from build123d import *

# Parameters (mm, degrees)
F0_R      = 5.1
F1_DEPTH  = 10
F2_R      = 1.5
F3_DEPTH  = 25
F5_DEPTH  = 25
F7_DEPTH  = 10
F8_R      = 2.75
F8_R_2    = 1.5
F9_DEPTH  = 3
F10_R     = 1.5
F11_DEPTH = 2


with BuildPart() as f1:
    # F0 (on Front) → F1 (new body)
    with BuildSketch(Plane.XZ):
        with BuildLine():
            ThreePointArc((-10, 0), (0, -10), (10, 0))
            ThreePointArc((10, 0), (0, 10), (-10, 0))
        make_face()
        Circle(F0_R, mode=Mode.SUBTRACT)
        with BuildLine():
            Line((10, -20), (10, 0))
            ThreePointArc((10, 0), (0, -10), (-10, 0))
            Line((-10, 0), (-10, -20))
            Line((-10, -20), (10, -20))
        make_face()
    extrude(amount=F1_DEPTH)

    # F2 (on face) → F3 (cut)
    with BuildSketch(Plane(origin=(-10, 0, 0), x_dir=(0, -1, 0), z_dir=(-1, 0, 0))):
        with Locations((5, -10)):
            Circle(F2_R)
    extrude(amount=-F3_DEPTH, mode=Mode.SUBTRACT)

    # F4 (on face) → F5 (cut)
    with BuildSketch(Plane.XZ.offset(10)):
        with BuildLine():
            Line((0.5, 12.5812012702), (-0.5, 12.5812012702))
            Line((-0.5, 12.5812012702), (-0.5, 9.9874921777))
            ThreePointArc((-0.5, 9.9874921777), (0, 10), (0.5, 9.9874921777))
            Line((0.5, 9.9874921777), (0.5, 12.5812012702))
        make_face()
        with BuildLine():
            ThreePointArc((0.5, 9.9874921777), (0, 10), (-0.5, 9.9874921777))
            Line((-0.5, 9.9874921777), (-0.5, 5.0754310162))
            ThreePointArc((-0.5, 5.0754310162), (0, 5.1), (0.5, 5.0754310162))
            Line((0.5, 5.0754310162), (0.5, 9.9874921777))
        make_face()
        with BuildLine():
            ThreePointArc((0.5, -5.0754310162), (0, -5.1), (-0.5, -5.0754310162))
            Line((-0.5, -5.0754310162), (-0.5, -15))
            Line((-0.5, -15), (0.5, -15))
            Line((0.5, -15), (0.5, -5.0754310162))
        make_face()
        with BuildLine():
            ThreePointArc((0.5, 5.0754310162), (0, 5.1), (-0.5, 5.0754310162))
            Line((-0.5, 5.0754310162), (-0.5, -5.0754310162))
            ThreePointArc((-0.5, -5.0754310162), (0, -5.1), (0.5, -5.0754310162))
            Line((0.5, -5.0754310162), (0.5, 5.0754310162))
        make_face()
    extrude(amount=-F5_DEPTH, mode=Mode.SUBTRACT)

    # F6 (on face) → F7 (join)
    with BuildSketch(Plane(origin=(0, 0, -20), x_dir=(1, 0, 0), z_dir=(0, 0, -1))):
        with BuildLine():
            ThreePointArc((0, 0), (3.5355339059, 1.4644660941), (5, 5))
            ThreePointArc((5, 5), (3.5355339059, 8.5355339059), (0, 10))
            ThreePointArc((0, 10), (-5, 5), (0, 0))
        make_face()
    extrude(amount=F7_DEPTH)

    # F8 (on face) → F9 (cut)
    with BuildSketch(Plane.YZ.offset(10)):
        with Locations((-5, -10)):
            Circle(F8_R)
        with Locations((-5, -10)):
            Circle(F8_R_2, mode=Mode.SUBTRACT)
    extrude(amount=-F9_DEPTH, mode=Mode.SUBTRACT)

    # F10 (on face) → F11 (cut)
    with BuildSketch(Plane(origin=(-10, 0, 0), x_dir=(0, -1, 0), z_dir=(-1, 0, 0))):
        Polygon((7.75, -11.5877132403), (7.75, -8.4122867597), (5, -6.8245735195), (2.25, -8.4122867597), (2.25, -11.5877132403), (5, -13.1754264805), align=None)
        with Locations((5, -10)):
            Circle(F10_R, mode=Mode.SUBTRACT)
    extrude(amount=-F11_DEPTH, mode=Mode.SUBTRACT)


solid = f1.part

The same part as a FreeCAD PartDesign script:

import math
import FreeCAD as App
import Part
import Sketcher
Q = App.Units.Quantity

doc = App.newDocument("Part")
body = doc.addObject("PartDesign::Body", "Body")

# Sketch on XZ plane
sketch1 = body.newObject("Sketcher::SketchObject", "Sketch")
sketch1.AttachmentSupport = (doc.getObject("XZ_Plane"), [""])
sketch1.MapMode = "FlatFace"
sketch1.addGeometry(Part.ArcOfCircle(Part.Circle(App.Vector(0, 0, 0), App.Vector(0, 0, 1), 10), math.radians(0), math.radians(180)), False)
sketch1.addGeometry(Part.LineSegment(App.Vector(-10, 0, 0), App.Vector(-10, -20, 0)), False)
sketch1.addGeometry(Part.LineSegment(App.Vector(-10, -20, 0), App.Vector(10, -20, 0)), False)
sketch1.addGeometry(Part.LineSegment(App.Vector(10, -20, 0), App.Vector(10, 0, 0)), False)
sketch1.addGeometry(Part.Circle(App.Vector(0, 0, 0), App.Vector(0, 0, 1), 5), False)
sketch1.addConstraint(Sketcher.Constraint("Tangent", 0, 2, 1, 1))
sketch1.addConstraint(Sketcher.Constraint("Coincident", 1, 2, 2, 1))
sketch1.addConstraint(Sketcher.Constraint("Coincident", 2, 2, 3, 1))
sketch1.addConstraint(Sketcher.Constraint("Tangent", 3, 2, 0, 1))
sketch1.addConstraint(Sketcher.Constraint("Vertical", 1))
sketch1.addConstraint(Sketcher.Constraint("Horizontal", 2))
sketch1.addConstraint(Sketcher.Constraint("Vertical", 3))
sketch1.addConstraint(Sketcher.Constraint("Coincident", 0, 3, -1, 1))
sketch1.addConstraint(Sketcher.Constraint("Coincident", 4, 3, -1, 1))
sketch1.addConstraint(Sketcher.Constraint("Equal", 2, 1))
sketch1.addConstraint(Sketcher.Constraint("Radius", 0, 10.0))
sketch1.addConstraint(Sketcher.Constraint("Diameter", 4, 10.2))
pad1 = body.newObject("PartDesign::Pad", "Pad")
pad1.Profile = sketch1
pad1.Length = 10

# Sketch on YZ plane
sketch2 = body.newObject("Sketcher::SketchObject", "Sketch001")
sketch2.AttachmentSupport = (doc.getObject("YZ_Plane"), [""])
sketch2.MapMode = "FlatFace"
sketch2.AttachmentOffset = App.Placement(App.Vector(0, 0, -10), App.Rotation())
sketch2.addGeometry(Part.Circle(App.Vector(-5, -10, 0), App.Vector(0, 0, 1), 1.5), False)
sketch2.addConstraint(Sketcher.Constraint("Diameter", 0, 3.0))
sketch2.addConstraint(Sketcher.Constraint("DistanceX", 0, 3, -1, 1, 5.0))
sketch2.addConstraint(Sketcher.Constraint("DistanceY", 0, 3, -1, 1, 10.0))
pocket1 = body.newObject("PartDesign::Pocket", "Pocket")
pocket1.Profile = sketch2
pocket1.Length = 25
pocket1.Reversed = True

# Sketch on XZ plane
sketch3 = body.newObject("Sketcher::SketchObject", "Sketch002")
sketch3.AttachmentSupport = (doc.getObject("XZ_Plane"), [""])
sketch3.MapMode = "FlatFace"
sketch3.AttachmentOffset = App.Placement(App.Vector(0, 0, 10), App.Rotation())
sketch3.addGeometry(Part.LineSegment(App.Vector(0.5, 12.6, 0), App.Vector(-0.5, 12.6, 0)), False)
sketch3.addGeometry(Part.LineSegment(App.Vector(-0.5, 12.6, 0), App.Vector(-0.5, -15, 0)), False)
sketch3.addGeometry(Part.LineSegment(App.Vector(-0.5, -15, 0), App.Vector(0.5, -15, 0)), False)
sketch3.addGeometry(Part.LineSegment(App.Vector(0.5, -15, 0), App.Vector(0.5, 12.6, 0)), False)
sketch3.addConstraint(Sketcher.Constraint("Coincident", 0, 2, 1, 1))
sketch3.addConstraint(Sketcher.Constraint("Coincident", 1, 2, 2, 1))
sketch3.addConstraint(Sketcher.Constraint("Coincident", 2, 2, 3, 1))
sketch3.addConstraint(Sketcher.Constraint("Coincident", 3, 2, 0, 1))
sketch3.addConstraint(Sketcher.Constraint("Horizontal", 0))
sketch3.addConstraint(Sketcher.Constraint("Vertical", 1))
sketch3.addConstraint(Sketcher.Constraint("Horizontal", 2))
sketch3.addConstraint(Sketcher.Constraint("Vertical", 3))
sketch3.addConstraint(Sketcher.Constraint("DistanceX", 0, 2, 0, 1, 1.0))
sketch3.addConstraint(Sketcher.Constraint("DistanceY", 1, 2, -1, 1, 15.0))
sketch3.addConstraint(Sketcher.Constraint("DistanceX", 0, 2, -1, 1, 0.5))
sketch3.addConstraint(Sketcher.Constraint("DistanceY", 1, 2, 1, 1, 27.581201))
pocket2 = body.newObject("PartDesign::Pocket", "Pocket001")
pocket2.Profile = sketch3
pocket2.Length = 25

# Sketch on XY plane
sketch4 = body.newObject("Sketcher::SketchObject", "Sketch003")
sketch4.AttachmentSupport = (doc.getObject("XY_Plane"), [""])
sketch4.MapMode = "FlatFace"
sketch4.AttachmentOffset = App.Placement(App.Vector(0, 0, -20), App.Rotation())
sketch4.addGeometry(Part.ArcOfCircle(Part.Circle(App.Vector(0, -5, 0), App.Vector(0, 0, 1), 5), math.radians(0), math.radians(90)), False)
sketch4.addGeometry(Part.ArcOfCircle(Part.Circle(App.Vector(0, -5, 0), App.Vector(0, 0, 1), 5), math.radians(-90), math.radians(0)), False)
sketch4.addGeometry(Part.ArcOfCircle(Part.Circle(App.Vector(0, -5, 0), App.Vector(0, 0, 1), 5), math.radians(90), math.radians(270)), False)
sketch4.addConstraint(Sketcher.Constraint("Tangent", 0, 1, 1, 2))
sketch4.addConstraint(Sketcher.Constraint("Tangent", 1, 1, 2, 2))
sketch4.addConstraint(Sketcher.Constraint("Tangent", 2, 1, 0, 2))
sketch4.addConstraint(Sketcher.Constraint("Coincident", 2, 1, -1, 1))
sketch4.addConstraint(Sketcher.Constraint("PointOnObject", 0, 3, -2))
sketch4.addConstraint(Sketcher.Constraint("PointOnObject", 1, 1, -2))
sketch4.addConstraint(Sketcher.Constraint("Horizontal", 2, 3, 0, 1))
sketch4.addConstraint(Sketcher.Constraint("Radius", 0, 5.0))
pad2 = body.newObject("PartDesign::Pad", "Pad001")
pad2.Profile = sketch4
pad2.Length = 10
pad2.Reversed = True

# Sketch on YZ plane
sketch5 = body.newObject("Sketcher::SketchObject", "Sketch004")
sketch5.AttachmentSupport = (doc.getObject("YZ_Plane"), [""])
sketch5.MapMode = "FlatFace"
sketch5.AttachmentOffset = App.Placement(App.Vector(0, 0, 10), App.Rotation())
sketch5.addGeometry(Part.Circle(App.Vector(-5, -10, 0), App.Vector(0, 0, 1), 2.8), False)
sketch5.addGeometry(Part.Circle(App.Vector(-5, -10, 0), App.Vector(0, 0, 1), 1.5), False)
sketch5.addConstraint(Sketcher.Constraint("Coincident", 1, 3, 0, 3))
sketch5.addConstraint(Sketcher.Constraint("Diameter", 1, 3.0))
sketch5.addConstraint(Sketcher.Constraint("Diameter", 0, 5.5))
sketch5.addConstraint(Sketcher.Constraint("DistanceX", 0, 3, -1, 1, 5.0))
sketch5.addConstraint(Sketcher.Constraint("DistanceY", 0, 3, -1, 1, 10.0))
pocket3 = body.newObject("PartDesign::Pocket", "Pocket002")
pocket3.Profile = sketch5
pocket3.Length = 3

# Sketch on YZ plane
sketch6 = body.newObject("Sketcher::SketchObject", "Sketch005")
sketch6.AttachmentSupport = (doc.getObject("YZ_Plane"), [""])
sketch6.MapMode = "FlatFace"
sketch6.AttachmentOffset = App.Placement(App.Vector(0, 0, -10), App.Rotation())
sketch6.addGeometry(Part.LineSegment(App.Vector(-7.8, -11.6, 0), App.Vector(-7.8, -8.4, 0)), False)
sketch6.addGeometry(Part.LineSegment(App.Vector(-7.8, -8.4, 0), App.Vector(-5, -6.8, 0)), False)
sketch6.addGeometry(Part.LineSegment(App.Vector(-5, -6.8, 0), App.Vector(-2.2, -8.4, 0)), False)
sketch6.addGeometry(Part.LineSegment(App.Vector(-2.2, -8.4, 0), App.Vector(-2.2, -11.6, 0)), False)
sketch6.addGeometry(Part.LineSegment(App.Vector(-2.2, -11.6, 0), App.Vector(-5, -13.2, 0)), False)
sketch6.addGeometry(Part.LineSegment(App.Vector(-5, -13.2, 0), App.Vector(-7.8, -11.6, 0)), False)
sketch6.addGeometry(Part.Circle(App.Vector(-5, -10, 0), App.Vector(0, 0, 1), 1.5), False)
sketch6.addConstraint(Sketcher.Constraint("Coincident", 0, 2, 1, 1))
sketch6.addConstraint(Sketcher.Constraint("Coincident", 1, 2, 2, 1))
sketch6.addConstraint(Sketcher.Constraint("Coincident", 2, 2, 3, 1))
sketch6.addConstraint(Sketcher.Constraint("Coincident", 3, 2, 4, 1))
sketch6.addConstraint(Sketcher.Constraint("Coincident", 4, 2, 5, 1))
sketch6.addConstraint(Sketcher.Constraint("Coincident", 5, 2, 0, 1))
sketch6.addConstraint(Sketcher.Constraint("Vertical", 0))
sketch6.addConstraint(Sketcher.Constraint("Vertical", 3))
sketch6.addConstraint(Sketcher.Constraint("Parallel", 1, 4))
sketch6.addConstraint(Sketcher.Constraint("Parallel", 2, 5))
sketch6.addConstraint(Sketcher.Constraint("Horizontal", 0, 2, 2, 2))
sketch6.addConstraint(Sketcher.Constraint("Horizontal", 3, 2, 5, 2))
sketch6.addConstraint(Sketcher.Constraint("Vertical", 6, 3, 1, 2))
sketch6.addConstraint(Sketcher.Constraint("Vertical", 1, 2, 4, 2))
sketch6.addConstraint(Sketcher.Constraint("Diameter", 6, 3.0))
sketch6.addConstraint(Sketcher.Constraint("Angle", 1, Q("30 deg")))
sketch6.addConstraint(Sketcher.Constraint("DistanceX", 6, 3, -1, 1, 5.0))
sketch6.addConstraint(Sketcher.Constraint("DistanceY", 6, 3, -1, 1, 10.0))
sketch6.addConstraint(Sketcher.Constraint("DistanceX", 0, 2, 2, 2, 5.5))
sketch6.addConstraint(Sketcher.Constraint("DistanceY", 0, 1, 0, 2, 3.175426))
sketch6.addConstraint(Sketcher.Constraint("DistanceY", 0, 2, -1, 1, 8.412287))
pocket4 = body.newObject("PartDesign::Pocket", "Pocket003")
pocket4.Profile = sketch6
pocket4.Length = 2
pocket4.Reversed = True

doc.recompute()
